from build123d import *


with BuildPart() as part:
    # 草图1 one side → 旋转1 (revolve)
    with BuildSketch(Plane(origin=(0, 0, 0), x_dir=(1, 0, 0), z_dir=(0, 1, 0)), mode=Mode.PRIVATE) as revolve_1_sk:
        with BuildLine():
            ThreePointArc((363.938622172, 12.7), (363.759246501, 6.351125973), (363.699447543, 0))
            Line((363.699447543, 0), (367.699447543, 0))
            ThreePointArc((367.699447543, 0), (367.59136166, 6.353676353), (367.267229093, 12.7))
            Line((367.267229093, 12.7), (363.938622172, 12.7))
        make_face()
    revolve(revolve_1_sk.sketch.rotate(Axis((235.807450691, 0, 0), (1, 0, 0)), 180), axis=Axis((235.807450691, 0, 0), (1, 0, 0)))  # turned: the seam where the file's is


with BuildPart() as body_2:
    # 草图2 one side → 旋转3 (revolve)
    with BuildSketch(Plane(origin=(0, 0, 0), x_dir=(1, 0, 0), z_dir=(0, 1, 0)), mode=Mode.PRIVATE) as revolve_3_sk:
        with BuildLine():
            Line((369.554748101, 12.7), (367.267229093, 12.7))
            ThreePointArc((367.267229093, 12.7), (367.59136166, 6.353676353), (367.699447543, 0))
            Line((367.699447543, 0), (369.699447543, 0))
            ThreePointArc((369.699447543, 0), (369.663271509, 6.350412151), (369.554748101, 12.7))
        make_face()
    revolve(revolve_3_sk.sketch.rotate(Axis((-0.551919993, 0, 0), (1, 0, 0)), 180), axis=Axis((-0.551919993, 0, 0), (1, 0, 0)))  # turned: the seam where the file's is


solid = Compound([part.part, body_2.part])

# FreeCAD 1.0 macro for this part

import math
import FreeCAD as App
import Part
import Sketcher

V = App.Vector
Q = App.Units.Quantity

doc = App.newDocument("Part")
body = doc.addObject("PartDesign::Body", "Body")

# Sketch on XZ plane
sketch1 = body.newObject("Sketcher::SketchObject", "Sketch")
sketch1.AttachmentSupport = (doc.getObject("XZ_Plane"), [""])
sketch1.MapMode = "FlatFace"
sketch1.addGeometry(Part.ArcOfCircle(Part.Circle(V(701, 0, 0), V(0, 0, 1), 337.3), math.radians(180), math.radians(182.16)), False)
sketch1.addGeometry(Part.LineSegment(V(363.7, 0, 0), V(367.7, 0, 0)), False)
sketch1.addGeometry(Part.ArcOfCircle(Part.Circle(V(180.9, 0, 0), V(0, 0, 1), 186.8), math.radians(-3.9), math.radians(0)), False)
sketch1.addGeometry(Part.LineSegment(V(367.3, -12.7, 0), V(363.9, -12.7, 0)), False)
sketch1.addConstraint(Sketcher.Constraint("Coincident", 0, 1, 1, 1))
sketch1.addConstraint(Sketcher.Constraint("Coincident", 1, 2, 2, 2))
sketch1.addConstraint(Sketcher.Constraint("Coincident", 2, 1, 3, 1))
sketch1.addConstraint(Sketcher.Constraint("Coincident", 3, 2, 0, 2))
sketch1.addConstraint(Sketcher.Constraint("Horizontal", 1))
sketch1.addConstraint(Sketcher.Constraint("Horizontal", 3))
sketch1.addConstraint(Sketcher.Constraint("PointOnObject", 0, 3, -1))
sketch1.addConstraint(Sketcher.Constraint("PointOnObject", 2, 3, -1))
sketch1.addConstraint(Sketcher.Constraint("PointOnObject", 0, 1, -1))
sketch1.addConstraint(Sketcher.Constraint("Radius", 0, Q("337.299999 mm")))
sketch1.addConstraint(Sketcher.Constraint("Radius", 2, Q("186.8 mm")))
sketch1.addConstraint(Sketcher.Constraint("DistanceX", 1, 1, 1, 2, Q("4 mm")))
sketch1.addConstraint(Sketcher.Constraint("DistanceY", 2, 1, -1, 1, Q("12.7 mm")))
sketch1.addConstraint(Sketcher.Constraint("DistanceX", -1, 1, 2, 1, Q("367.267229 mm")))
revolution = body.newObject("PartDesign::Revolution", "Revolution")
revolution.Profile = sketch1
revolution.ReferenceAxis = (sketch1, ["H_Axis"])
revolution.Angle = 360
body2 = doc.addObject("PartDesign::Body", "Body001")

# Sketch on XZ plane
sketch2 = body2.newObject("Sketcher::SketchObject", "Sketch001")
sketch2.AttachmentSupport = (doc.getObject("XZ_Plane001"), [""])
sketch2.MapMode = "FlatFace"
sketch2.addGeometry(Part.LineSegment(V(369.6, -12.7, 0), V(367.3, -12.7, 0)), False)
sketch2.addGeometry(Part.ArcOfCircle(Part.Circle(V(180.9, 0, 0), V(0, 0, 1), 186.8), math.radians(-3.9), math.radians(0)), False)
sketch2.addGeometry(Part.LineSegment(V(367.7, 0, 0), V(369.7, 0, 0)), False)
sketch2.addGeometry(Part.ArcOfCircle(Part.Circle(V(-187.7, 0, 0), V(0, 0, 1), 557.4), math.radians(-1.31), math.radians(0)), False)
sketch2.addConstraint(Sketcher.Constraint("Coincident", 0, 2, 1, 1))
sketch2.addConstraint(Sketcher.Constraint("Coincident", 1, 2, 2, 1))
sketch2.addConstraint(Sketcher.Constraint("Coincident", 2, 2, 3, 2))
sketch2.addConstraint(Sketcher.Constraint("Coincident", 3, 1, 0, 1))
sketch2.addConstraint(Sketcher.Constraint("Horizontal", 0))
sketch2.addConstraint(Sketcher.Constraint("Horizontal", 2))
sketch2.addConstraint(Sketcher.Constraint("PointOnObject", 1, 3, -1))
sketch2.addConstraint(Sketcher.Constraint("PointOnObject", 3, 3, -1))
sketch2.addConstraint(Sketcher.Constraint("PointOnObject", 1, 2, -1))
sketch2.addConstraint(Sketcher.Constraint("Radius", 1, Q("186.8 mm")))
sketch2.addConstraint(Sketcher.Constraint("DistanceX", 2, 1, 2, 2, Q("2 mm")))
sketch2.addConstraint(Sketcher.Constraint("DistanceY", 0, 2, -1, 1, Q("12.7 mm")))
sketch2.addConstraint(Sketcher.Constraint("Radius", 3, Q("557.399993 mm")))
sketch2.addConstraint(Sketcher.Constraint("DistanceX", -1, 1, 0, 2, Q("367.267229 mm")))
revolution2 = body2.newObject("PartDesign::Revolution", "Revolution001")
revolution2.Profile = sketch2
revolution2.ReferenceAxis = (sketch2, ["H_Axis"])
revolution2.Angle = 360

doc.recompute()
